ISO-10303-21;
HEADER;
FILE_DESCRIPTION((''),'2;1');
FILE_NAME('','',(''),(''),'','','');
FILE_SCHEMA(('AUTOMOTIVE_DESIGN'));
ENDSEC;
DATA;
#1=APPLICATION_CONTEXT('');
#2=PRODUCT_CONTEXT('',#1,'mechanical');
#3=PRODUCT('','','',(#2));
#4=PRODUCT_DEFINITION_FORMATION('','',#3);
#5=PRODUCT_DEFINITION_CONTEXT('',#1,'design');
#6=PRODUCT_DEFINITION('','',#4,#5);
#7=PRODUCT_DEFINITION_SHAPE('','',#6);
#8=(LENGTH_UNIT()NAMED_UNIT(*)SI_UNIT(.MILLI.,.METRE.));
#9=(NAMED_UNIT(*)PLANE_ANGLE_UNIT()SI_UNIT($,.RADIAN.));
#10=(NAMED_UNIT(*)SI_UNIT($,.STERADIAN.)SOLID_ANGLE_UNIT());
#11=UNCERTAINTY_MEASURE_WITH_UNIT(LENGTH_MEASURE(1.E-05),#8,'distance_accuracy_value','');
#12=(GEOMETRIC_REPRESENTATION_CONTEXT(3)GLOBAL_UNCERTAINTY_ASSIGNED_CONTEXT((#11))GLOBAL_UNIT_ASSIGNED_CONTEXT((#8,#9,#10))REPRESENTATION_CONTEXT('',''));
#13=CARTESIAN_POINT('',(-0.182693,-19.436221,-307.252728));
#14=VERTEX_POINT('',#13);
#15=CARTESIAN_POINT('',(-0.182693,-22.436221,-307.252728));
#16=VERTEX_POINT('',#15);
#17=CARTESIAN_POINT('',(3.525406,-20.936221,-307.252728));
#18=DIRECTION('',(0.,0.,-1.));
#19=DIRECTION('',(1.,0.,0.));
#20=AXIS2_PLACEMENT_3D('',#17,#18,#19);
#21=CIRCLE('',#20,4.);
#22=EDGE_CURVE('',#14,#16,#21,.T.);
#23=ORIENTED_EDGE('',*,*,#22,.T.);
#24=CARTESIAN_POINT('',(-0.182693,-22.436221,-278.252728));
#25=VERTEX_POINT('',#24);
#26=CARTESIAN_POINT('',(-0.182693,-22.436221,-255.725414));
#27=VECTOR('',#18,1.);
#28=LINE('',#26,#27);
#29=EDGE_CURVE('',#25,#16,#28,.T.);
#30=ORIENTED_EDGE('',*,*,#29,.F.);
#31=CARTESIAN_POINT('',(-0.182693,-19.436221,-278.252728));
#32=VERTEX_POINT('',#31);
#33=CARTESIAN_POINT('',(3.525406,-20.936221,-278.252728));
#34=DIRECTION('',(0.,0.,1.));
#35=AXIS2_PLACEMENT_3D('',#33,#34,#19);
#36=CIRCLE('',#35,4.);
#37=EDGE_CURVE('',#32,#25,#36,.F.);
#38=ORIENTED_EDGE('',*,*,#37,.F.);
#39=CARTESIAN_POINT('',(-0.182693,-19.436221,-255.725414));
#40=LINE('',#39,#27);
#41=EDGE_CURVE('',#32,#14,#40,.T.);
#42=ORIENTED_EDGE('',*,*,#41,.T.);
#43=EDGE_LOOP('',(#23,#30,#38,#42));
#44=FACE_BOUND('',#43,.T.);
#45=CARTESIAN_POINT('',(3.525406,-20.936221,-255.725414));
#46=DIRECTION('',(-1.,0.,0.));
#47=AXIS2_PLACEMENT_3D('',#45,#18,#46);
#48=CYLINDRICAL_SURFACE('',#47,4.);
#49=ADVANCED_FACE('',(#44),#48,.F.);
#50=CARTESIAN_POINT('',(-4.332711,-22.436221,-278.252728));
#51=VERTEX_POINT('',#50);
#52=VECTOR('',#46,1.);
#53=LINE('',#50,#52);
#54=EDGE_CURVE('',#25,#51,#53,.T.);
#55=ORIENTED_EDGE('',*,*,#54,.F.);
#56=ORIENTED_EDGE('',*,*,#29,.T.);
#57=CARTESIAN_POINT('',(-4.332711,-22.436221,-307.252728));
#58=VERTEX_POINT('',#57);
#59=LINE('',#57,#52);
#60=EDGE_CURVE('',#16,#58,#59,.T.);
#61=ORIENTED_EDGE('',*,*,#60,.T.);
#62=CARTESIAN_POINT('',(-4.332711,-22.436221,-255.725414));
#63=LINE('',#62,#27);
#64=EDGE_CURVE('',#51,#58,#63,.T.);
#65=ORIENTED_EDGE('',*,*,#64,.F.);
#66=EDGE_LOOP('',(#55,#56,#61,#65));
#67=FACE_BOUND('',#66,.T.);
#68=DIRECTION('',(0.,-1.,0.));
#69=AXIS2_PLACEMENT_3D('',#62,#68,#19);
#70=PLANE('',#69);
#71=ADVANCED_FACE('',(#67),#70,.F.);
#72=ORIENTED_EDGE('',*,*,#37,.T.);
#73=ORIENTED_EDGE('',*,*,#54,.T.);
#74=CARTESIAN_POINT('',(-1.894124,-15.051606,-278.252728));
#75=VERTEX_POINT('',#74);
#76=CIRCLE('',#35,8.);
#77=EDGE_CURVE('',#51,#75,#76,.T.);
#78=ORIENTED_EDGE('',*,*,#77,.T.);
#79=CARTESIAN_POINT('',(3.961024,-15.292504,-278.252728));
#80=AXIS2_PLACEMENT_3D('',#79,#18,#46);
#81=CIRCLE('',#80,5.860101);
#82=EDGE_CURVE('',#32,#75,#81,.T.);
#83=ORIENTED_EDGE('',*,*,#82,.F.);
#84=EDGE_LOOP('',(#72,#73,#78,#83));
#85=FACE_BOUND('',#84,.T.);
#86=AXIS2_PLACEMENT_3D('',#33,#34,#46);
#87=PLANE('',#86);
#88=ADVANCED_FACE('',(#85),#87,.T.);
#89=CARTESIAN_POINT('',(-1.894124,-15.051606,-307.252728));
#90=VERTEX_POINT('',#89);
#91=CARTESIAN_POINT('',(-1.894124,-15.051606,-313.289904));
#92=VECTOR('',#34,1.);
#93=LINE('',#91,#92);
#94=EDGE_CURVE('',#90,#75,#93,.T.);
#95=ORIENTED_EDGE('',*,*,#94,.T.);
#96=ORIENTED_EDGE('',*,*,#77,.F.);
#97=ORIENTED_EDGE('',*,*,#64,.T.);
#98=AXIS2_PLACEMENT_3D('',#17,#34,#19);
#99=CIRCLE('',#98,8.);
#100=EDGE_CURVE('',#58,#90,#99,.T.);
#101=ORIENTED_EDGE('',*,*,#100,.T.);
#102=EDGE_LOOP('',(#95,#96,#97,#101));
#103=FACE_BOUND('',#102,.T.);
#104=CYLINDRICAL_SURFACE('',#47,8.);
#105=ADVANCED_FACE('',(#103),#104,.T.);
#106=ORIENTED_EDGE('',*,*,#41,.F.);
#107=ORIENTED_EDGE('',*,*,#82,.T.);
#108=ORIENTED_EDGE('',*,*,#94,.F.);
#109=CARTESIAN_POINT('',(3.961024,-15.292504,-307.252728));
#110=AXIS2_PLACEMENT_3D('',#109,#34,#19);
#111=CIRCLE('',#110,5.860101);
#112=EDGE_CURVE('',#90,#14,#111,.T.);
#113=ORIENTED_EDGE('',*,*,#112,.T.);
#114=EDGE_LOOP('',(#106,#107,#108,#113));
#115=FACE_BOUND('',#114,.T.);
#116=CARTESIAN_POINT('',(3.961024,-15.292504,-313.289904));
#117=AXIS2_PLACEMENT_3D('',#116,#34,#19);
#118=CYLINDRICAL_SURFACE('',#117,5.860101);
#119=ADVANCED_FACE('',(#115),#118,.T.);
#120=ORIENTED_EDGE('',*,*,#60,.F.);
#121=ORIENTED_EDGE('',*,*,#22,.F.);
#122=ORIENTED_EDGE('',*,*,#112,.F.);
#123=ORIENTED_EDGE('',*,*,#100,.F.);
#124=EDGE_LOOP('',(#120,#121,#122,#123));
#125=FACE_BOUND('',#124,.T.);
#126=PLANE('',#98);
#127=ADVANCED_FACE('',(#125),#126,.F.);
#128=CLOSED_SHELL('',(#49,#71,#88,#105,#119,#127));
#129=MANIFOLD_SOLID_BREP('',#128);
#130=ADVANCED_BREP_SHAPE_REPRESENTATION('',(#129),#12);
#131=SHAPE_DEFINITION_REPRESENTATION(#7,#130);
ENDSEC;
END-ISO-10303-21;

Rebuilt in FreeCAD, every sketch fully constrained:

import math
import FreeCAD as App
import Part
import Sketcher

V = App.Vector
Q = App.Units.Quantity

doc = App.newDocument("Part")
params = doc.addObject("Spreadsheet::Sheet", "Params")
for row, (alias, value) in enumerate([
    ("sketch1_radius", "4 mm"),
    ("sketch1_radius2", "8 mm"),
    ("pad1_length", "29 mm"),
    ("sketch2_radius", "8 mm"),
    ("pocket1_length", "29 mm"),
], start=1):
    params.set(f"A{row}", alias)
    params.set(f"B{row}", "=" + value)
    params.setAlias(f"B{row}", alias)

body = doc.addObject("PartDesign::Body", "Body")

sketch1 = doc.addObject("Sketcher::SketchObject", "Sketch")
body.addObject(sketch1)
sketch1.AttachmentSupport = (doc.XY_Plane, [""])
sketch1.MapMode = "FlatFace"
sketch1.AttachmentOffset = App.Placement(V(0, 0, -307.252728), App.Rotation())
sketch1.addGeometry(Part.LineSegment(V(-4.3, -19.4, 0), V(-0.2, -19.4, 0)), False)
sketch1.addGeometry(Part.ArcOfCircle(Part.Circle(V(3.5, -20.9, 0), V(0, 0, 1), 4), math.radians(-158), math.radians(158)), False)
sketch1.addGeometry(Part.LineSegment(V(-0.2, -22.4, 0), V(-4.3, -22.4, 0)), False)
sketch1.addGeometry(Part.ArcOfCircle(Part.Circle(V(3.5, -20.9, 0), V(0, 0, 1), 8), math.radians(-169), math.radians(169)), False)
sketch1.addConstraint(Sketcher.Constraint("Coincident", 0, 2, 1, 2))
sketch1.addConstraint(Sketcher.Constraint("Coincident", 1, 1, 2, 1))
sketch1.addConstraint(Sketcher.Constraint("Coincident", 2, 2, 3, 1))
sketch1.addConstraint(Sketcher.Constraint("Coincident", 3, 2, 0, 1))
sketch1.addConstraint(Sketcher.Constraint("Horizontal", 0))
sketch1.addConstraint(Sketcher.Constraint("Horizontal", 2))
sketch1.addConstraint(Sketcher.Constraint("Coincident", 3, 3, 1, 3))
sketch1.addConstraint(Sketcher.Constraint("Vertical", 0, 2, 1, 1))
sketch1.addConstraint(Sketcher.Constraint("Radius", 1, Q("4 mm")))
sketch1.addConstraint(Sketcher.Constraint("Radius", 3, Q("8 mm")))
sketch1.addConstraint(Sketcher.Constraint("DistanceY", 1, 1, 0, 2, Q("3 mm")))
sketch1.addConstraint(Sketcher.Constraint("DistanceY", 1, 3, -1, 1, Q("20.936221 mm")))
sketch1.addConstraint(Sketcher.Constraint("DistanceX", 2, 2, -1, 1, Q("4.332711 mm")))
sketch1.setExpression("Constraints[8]", "Params.sketch1_radius")
sketch1.setExpression("Constraints[9]", "Params.sketch1_radius2")
pad1 = doc.addObject("PartDesign::Pad", "Pad")
body.addObject(pad1)
pad1.Profile = sketch1
pad1.setExpression("Length", "Params.pad1_length")

sketch2 = doc.addObject("Sketcher::SketchObject", "Sketch001")
body.addObject(sketch2)
sketch2.AttachmentSupport = (doc.XY_Plane, [""])
sketch2.MapMode = "FlatFace"
sketch2.AttachmentOffset = App.Placement(V(0, 0, -307.252728), App.Rotation())
sketch2.addGeometry(Part.LineSegment(V(-4.3, -19.4, 0), V(-0.2, -19.4, 0)), False)
sketch2.addGeometry(Part.ArcOfCircle(Part.Circle(V(4, -15.3, 0), V(0, 0, 1), 5.9), math.radians(178), math.radians(225)), False)
sketch2.addGeometry(Part.ArcOfCircle(Part.Circle(V(3.5, -20.9, 0), V(0, 0, 1), 8), math.radians(133), math.radians(169)), False)
sketch2.addConstraint(Sketcher.Constraint("Coincident", 0, 2, 1, 2))
sketch2.addConstraint(Sketcher.Constraint("Coincident", 1, 1, 2, 1))
sketch2.addConstraint(Sketcher.Constraint("Coincident", 2, 2, 0, 1))
sketch2.addConstraint(Sketcher.Constraint("Horizontal", 0))
sketch2.addConstraint(Sketcher.Constraint("Radius", 2, Q("8 mm")))
sketch2.addConstraint(Sketcher.Constraint("Radius", 1, Q("5.860101 mm")))
sketch2.addConstraint(Sketcher.Constraint("DistanceY", 2, 3, 0, 2, Q("1.5 mm")))
sketch2.addConstraint(Sketcher.Constraint("DistanceX", 0, 2, 2, 3, Q("3.708099 mm")))
sketch2.addConstraint(Sketcher.Constraint("DistanceY", 2, 3, -1, 1, Q("20.936221 mm")))
sketch2.addConstraint(Sketcher.Constraint("DistanceX", 2, 2, -1, 1, Q("4.332711 mm")))
sketch2.addConstraint(Sketcher.Constraint("DistanceX", 2, 3, 1, 3, Q("0.435618 mm")))
sketch2.setExpression("Constraints[4]", "Params.sketch2_radius")
pocket1 = doc.addObject("PartDesign::Pocket", "Pocket")
body.addObject(pocket1)
pocket1.Profile = sketch2
pocket1.setExpression("Length", "Params.pocket1_length")
pocket1.Reversed = True

doc.recompute()
